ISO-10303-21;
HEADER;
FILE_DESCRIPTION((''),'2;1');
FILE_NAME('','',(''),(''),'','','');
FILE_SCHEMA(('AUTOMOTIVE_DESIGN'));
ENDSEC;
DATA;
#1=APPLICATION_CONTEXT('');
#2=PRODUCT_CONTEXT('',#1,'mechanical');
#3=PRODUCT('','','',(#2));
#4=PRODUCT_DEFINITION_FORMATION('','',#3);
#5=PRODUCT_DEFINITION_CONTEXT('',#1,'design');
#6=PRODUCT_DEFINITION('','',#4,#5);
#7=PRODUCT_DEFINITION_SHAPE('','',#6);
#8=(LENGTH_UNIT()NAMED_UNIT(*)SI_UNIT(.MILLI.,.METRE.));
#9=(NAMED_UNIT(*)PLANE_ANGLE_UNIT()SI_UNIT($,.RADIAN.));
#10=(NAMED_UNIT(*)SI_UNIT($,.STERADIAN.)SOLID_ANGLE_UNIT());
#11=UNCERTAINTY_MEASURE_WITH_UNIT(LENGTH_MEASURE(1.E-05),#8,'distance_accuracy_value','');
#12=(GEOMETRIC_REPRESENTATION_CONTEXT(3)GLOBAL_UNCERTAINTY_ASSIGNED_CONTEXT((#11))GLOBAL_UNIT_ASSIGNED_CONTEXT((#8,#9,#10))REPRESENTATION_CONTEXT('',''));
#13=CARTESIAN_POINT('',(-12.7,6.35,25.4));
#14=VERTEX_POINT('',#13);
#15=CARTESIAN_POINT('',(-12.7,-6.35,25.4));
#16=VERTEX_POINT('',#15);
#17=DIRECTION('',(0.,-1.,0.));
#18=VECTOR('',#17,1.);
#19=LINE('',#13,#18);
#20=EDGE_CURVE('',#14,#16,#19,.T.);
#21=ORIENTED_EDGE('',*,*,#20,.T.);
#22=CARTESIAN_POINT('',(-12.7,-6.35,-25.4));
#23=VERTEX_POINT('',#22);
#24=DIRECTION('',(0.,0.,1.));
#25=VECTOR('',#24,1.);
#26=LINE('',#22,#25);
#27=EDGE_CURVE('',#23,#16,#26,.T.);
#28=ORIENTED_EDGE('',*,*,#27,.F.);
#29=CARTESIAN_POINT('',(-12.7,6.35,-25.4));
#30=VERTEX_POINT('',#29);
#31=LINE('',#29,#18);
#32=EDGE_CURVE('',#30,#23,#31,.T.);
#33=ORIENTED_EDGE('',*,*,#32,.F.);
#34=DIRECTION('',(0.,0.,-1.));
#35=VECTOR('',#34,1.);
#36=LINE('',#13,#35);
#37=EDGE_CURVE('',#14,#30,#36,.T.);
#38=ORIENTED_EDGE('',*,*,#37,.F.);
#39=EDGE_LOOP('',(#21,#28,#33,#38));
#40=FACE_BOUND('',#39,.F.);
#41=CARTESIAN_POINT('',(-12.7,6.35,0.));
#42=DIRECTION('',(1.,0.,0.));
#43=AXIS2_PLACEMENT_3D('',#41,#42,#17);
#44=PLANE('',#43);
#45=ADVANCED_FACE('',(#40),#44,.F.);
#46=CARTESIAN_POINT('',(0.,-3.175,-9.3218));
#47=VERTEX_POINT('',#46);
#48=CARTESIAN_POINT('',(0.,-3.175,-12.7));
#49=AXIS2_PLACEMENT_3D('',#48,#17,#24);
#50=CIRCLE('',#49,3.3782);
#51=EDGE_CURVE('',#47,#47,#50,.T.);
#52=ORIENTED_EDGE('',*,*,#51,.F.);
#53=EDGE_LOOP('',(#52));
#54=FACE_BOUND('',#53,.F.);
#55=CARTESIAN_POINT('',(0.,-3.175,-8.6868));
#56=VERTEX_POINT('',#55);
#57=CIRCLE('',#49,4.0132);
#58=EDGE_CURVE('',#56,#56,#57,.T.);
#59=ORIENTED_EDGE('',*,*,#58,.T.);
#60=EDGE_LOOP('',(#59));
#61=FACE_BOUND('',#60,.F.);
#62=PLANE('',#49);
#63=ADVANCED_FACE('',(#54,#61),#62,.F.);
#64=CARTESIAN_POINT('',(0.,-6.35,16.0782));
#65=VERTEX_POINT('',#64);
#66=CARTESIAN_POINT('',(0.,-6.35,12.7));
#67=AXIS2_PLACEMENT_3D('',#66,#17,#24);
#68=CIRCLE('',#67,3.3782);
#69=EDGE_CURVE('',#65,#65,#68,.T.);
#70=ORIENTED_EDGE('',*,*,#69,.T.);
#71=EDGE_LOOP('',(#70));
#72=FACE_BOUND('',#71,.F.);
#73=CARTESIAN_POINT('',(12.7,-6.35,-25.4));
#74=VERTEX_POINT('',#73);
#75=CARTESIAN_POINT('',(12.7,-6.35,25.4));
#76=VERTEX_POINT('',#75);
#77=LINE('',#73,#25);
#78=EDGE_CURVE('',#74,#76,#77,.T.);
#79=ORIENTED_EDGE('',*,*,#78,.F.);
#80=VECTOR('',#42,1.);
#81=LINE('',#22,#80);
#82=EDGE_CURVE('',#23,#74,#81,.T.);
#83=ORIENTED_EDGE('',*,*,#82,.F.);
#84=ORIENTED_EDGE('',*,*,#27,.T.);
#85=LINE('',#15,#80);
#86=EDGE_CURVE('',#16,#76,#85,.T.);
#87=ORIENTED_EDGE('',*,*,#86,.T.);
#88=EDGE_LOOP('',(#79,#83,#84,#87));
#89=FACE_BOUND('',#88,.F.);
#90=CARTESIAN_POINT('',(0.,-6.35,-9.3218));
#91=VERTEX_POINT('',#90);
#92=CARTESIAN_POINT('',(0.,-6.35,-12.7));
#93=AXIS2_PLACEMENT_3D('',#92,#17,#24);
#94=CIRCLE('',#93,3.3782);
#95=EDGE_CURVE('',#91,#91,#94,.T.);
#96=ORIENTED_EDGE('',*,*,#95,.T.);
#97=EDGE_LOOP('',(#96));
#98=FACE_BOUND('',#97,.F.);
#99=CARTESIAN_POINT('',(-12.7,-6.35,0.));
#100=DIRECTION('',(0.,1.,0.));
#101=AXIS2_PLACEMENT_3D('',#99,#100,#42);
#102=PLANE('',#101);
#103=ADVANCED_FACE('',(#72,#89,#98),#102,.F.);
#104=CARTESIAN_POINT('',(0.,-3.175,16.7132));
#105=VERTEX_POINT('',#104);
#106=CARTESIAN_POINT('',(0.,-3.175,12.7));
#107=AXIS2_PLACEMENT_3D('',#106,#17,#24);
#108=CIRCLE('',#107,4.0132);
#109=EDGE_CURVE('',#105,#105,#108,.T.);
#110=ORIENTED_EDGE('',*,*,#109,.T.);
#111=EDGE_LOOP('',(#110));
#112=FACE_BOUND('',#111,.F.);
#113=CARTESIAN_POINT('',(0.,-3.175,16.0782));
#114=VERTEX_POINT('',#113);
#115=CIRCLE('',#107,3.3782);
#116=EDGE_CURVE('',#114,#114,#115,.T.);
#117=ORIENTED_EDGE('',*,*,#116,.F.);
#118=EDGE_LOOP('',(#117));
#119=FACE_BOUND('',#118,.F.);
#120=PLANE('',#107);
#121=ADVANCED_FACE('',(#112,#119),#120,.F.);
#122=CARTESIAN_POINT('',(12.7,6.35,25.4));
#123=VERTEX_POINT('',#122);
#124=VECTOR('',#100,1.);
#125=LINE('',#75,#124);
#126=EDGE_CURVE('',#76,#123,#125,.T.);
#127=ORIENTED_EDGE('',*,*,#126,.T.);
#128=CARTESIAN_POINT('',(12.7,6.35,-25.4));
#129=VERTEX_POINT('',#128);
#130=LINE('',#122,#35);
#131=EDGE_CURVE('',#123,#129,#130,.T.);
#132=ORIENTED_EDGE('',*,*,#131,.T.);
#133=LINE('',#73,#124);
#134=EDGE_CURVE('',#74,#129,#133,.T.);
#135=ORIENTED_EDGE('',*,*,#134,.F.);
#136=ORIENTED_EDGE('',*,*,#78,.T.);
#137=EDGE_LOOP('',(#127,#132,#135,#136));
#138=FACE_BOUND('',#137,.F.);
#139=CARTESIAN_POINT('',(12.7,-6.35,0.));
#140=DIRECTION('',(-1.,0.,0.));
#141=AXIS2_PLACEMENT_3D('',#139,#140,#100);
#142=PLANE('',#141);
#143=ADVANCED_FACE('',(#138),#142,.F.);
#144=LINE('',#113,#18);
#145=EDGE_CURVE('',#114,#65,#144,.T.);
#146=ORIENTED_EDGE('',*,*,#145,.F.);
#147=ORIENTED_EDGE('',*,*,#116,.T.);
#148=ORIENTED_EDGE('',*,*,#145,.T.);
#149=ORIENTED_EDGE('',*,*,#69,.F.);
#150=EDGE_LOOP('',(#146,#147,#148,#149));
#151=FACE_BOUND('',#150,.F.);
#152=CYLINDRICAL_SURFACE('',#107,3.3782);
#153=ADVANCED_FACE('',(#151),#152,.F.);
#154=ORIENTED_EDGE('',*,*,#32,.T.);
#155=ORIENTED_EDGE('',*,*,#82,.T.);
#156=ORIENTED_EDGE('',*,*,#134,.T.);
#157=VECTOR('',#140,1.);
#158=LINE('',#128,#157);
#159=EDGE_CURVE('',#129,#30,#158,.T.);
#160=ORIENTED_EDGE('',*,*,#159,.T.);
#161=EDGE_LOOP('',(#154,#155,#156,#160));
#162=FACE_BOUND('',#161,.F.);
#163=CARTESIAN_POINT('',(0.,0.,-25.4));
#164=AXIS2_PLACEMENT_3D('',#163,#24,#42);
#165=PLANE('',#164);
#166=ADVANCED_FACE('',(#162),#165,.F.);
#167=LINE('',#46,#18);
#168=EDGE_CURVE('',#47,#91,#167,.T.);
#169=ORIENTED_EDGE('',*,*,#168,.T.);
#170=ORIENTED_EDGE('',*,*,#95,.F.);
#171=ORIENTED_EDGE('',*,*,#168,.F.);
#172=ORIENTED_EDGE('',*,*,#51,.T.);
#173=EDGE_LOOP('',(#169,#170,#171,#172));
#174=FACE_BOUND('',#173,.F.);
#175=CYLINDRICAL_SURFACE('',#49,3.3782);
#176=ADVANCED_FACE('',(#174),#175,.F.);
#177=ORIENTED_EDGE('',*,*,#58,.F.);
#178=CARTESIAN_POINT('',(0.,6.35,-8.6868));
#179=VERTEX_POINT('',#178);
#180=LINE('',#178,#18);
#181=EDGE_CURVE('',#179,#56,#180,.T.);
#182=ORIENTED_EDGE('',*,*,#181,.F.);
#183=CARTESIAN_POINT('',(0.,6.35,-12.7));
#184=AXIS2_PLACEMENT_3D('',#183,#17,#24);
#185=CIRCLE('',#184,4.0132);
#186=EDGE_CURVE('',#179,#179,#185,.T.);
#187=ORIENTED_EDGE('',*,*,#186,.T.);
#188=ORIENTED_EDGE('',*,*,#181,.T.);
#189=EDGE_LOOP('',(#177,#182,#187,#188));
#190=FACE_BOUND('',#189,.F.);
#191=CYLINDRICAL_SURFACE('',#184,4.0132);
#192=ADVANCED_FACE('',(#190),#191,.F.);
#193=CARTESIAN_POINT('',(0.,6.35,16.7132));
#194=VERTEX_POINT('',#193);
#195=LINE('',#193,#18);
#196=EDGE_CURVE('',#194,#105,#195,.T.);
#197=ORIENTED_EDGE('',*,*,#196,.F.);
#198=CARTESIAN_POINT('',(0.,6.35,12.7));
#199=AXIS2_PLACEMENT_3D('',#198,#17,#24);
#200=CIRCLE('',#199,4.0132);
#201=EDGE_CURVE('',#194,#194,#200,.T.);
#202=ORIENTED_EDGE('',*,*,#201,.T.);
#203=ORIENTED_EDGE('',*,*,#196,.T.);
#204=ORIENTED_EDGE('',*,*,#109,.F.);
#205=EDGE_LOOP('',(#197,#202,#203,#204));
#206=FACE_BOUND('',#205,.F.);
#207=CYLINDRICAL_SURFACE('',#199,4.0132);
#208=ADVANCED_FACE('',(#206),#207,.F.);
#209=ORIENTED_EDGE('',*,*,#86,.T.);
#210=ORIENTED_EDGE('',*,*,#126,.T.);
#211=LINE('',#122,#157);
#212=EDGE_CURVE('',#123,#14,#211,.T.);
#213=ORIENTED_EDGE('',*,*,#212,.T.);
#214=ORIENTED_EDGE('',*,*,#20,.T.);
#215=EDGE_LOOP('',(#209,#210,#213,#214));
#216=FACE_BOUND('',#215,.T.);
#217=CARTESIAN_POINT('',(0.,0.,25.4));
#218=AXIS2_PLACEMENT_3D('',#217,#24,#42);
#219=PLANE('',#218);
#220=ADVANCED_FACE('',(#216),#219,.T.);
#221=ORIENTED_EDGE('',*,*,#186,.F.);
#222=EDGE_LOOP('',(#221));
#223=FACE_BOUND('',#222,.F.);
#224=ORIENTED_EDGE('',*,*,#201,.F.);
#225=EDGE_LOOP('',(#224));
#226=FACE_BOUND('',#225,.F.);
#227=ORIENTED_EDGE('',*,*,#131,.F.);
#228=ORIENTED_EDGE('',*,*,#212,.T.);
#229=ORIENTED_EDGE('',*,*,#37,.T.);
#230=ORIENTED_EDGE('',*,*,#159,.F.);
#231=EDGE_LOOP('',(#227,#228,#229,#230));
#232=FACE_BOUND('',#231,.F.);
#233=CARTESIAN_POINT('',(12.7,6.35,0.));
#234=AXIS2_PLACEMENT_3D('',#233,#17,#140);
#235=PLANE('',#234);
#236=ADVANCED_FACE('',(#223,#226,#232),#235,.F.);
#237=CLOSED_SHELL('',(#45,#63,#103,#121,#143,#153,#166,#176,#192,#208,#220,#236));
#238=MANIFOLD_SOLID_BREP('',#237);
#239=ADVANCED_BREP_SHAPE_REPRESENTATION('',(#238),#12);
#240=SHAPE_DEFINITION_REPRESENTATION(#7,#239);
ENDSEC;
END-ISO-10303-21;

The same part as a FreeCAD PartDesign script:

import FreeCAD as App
import Part
import Sketcher

V = App.Vector
Q = App.Units.Quantity

doc = App.newDocument("Part")
body = doc.addObject("PartDesign::Body", "Body")

# Sketch on XY plane
sketch1 = body.newObject("Sketcher::SketchObject", "Sketch")
sketch1.AttachmentSupport = (doc.getObject("XY_Plane"), [""])
sketch1.MapMode = "FlatFace"
sketch1.addGeometry(Part.LineSegment(V(-13, 6, 0), V(-13, -6, 0)), False)
sketch1.addGeometry(Part.LineSegment(V(-13, -6, 0), V(13, -6, 0)), False)
sketch1.addGeometry(Part.LineSegment(V(13, -6, 0), V(13, 6, 0)), False)
sketch1.addGeometry(Part.LineSegment(V(13, 6, 0), V(-13, 6, 0)), False)
sketch1.addConstraint(Sketcher.Constraint("Coincident", 0, 2, 1, 1))
sketch1.addConstraint(Sketcher.Constraint("Coincident", 1, 2, 2, 1))
sketch1.addConstraint(Sketcher.Constraint("Coincident", 2, 2, 3, 1))
sketch1.addConstraint(Sketcher.Constraint("Coincident", 3, 2, 0, 1))
sketch1.addConstraint(Sketcher.Constraint("Vertical", 0))
sketch1.addConstraint(Sketcher.Constraint("Horizontal", 1))
sketch1.addConstraint(Sketcher.Constraint("Vertical", 2))
sketch1.addConstraint(Sketcher.Constraint("Horizontal", 3))
sketch1.addConstraint(Sketcher.Constraint("Symmetric", 0, 2, 2, 2, -1, 1))
sketch1.addConstraint(Sketcher.Constraint("DistanceX", 1, 1, 1, 2, Q("1 in")))
sketch1.addConstraint(Sketcher.Constraint("DistanceY", 0, 2, 0, 1, Q("0.5 in")))
pad1 = body.newObject("PartDesign::Pad", "Pad")
pad1.Profile = sketch1
pad1.Length = Q("2 in")
pad1.Midplane = True

# Sketch on XZ plane
sketch2 = body.newObject("Sketcher::SketchObject", "Sketch001")
sketch2.AttachmentSupport = (doc.getObject("XZ_Plane"), [""])
sketch2.MapMode = "FlatFace"
sketch2.AttachmentOffset = App.Placement(V(0, 0, -0.25 * 25.4), App.Rotation())
sketch2.addGeometry(Part.Circle(V(0, 12.7, 0), V(0, 0, 1), 3.4), False)
sketch2.addGeometry(Part.Circle(V(0, -12.7, 0), V(0, 0, 1), 3.4), False)
sketch2.addConstraint(Sketcher.Constraint("Equal", 0, 1))
sketch2.addConstraint(Sketcher.Constraint("Symmetric", 0, 3, 1, 3, -1, 1))
sketch2.addConstraint(Sketcher.Constraint("PointOnObject", 0, 3, -2))
sketch2.addConstraint(Sketcher.Constraint("Diameter", 0, Q("0.266 in")))
sketch2.addConstraint(Sketcher.Constraint("DistanceY", 1, 3, 0, 3, Q("1 in")))
doc.recompute()
hole = body.newObject("PartDesign::Hole", "Hole")
hole.Profile = sketch2
hole.ThreadType = "None"
hole.Diameter = Q("0.266 in")
hole.DepthType = "ThroughAll"
hole.HoleCutType = "Counterbore"
hole.HoleCutDiameter = Q("0.316 in")
hole.HoleCutDepth = Q("0.375 in")
hole.Reversed = True

doc.recompute()
